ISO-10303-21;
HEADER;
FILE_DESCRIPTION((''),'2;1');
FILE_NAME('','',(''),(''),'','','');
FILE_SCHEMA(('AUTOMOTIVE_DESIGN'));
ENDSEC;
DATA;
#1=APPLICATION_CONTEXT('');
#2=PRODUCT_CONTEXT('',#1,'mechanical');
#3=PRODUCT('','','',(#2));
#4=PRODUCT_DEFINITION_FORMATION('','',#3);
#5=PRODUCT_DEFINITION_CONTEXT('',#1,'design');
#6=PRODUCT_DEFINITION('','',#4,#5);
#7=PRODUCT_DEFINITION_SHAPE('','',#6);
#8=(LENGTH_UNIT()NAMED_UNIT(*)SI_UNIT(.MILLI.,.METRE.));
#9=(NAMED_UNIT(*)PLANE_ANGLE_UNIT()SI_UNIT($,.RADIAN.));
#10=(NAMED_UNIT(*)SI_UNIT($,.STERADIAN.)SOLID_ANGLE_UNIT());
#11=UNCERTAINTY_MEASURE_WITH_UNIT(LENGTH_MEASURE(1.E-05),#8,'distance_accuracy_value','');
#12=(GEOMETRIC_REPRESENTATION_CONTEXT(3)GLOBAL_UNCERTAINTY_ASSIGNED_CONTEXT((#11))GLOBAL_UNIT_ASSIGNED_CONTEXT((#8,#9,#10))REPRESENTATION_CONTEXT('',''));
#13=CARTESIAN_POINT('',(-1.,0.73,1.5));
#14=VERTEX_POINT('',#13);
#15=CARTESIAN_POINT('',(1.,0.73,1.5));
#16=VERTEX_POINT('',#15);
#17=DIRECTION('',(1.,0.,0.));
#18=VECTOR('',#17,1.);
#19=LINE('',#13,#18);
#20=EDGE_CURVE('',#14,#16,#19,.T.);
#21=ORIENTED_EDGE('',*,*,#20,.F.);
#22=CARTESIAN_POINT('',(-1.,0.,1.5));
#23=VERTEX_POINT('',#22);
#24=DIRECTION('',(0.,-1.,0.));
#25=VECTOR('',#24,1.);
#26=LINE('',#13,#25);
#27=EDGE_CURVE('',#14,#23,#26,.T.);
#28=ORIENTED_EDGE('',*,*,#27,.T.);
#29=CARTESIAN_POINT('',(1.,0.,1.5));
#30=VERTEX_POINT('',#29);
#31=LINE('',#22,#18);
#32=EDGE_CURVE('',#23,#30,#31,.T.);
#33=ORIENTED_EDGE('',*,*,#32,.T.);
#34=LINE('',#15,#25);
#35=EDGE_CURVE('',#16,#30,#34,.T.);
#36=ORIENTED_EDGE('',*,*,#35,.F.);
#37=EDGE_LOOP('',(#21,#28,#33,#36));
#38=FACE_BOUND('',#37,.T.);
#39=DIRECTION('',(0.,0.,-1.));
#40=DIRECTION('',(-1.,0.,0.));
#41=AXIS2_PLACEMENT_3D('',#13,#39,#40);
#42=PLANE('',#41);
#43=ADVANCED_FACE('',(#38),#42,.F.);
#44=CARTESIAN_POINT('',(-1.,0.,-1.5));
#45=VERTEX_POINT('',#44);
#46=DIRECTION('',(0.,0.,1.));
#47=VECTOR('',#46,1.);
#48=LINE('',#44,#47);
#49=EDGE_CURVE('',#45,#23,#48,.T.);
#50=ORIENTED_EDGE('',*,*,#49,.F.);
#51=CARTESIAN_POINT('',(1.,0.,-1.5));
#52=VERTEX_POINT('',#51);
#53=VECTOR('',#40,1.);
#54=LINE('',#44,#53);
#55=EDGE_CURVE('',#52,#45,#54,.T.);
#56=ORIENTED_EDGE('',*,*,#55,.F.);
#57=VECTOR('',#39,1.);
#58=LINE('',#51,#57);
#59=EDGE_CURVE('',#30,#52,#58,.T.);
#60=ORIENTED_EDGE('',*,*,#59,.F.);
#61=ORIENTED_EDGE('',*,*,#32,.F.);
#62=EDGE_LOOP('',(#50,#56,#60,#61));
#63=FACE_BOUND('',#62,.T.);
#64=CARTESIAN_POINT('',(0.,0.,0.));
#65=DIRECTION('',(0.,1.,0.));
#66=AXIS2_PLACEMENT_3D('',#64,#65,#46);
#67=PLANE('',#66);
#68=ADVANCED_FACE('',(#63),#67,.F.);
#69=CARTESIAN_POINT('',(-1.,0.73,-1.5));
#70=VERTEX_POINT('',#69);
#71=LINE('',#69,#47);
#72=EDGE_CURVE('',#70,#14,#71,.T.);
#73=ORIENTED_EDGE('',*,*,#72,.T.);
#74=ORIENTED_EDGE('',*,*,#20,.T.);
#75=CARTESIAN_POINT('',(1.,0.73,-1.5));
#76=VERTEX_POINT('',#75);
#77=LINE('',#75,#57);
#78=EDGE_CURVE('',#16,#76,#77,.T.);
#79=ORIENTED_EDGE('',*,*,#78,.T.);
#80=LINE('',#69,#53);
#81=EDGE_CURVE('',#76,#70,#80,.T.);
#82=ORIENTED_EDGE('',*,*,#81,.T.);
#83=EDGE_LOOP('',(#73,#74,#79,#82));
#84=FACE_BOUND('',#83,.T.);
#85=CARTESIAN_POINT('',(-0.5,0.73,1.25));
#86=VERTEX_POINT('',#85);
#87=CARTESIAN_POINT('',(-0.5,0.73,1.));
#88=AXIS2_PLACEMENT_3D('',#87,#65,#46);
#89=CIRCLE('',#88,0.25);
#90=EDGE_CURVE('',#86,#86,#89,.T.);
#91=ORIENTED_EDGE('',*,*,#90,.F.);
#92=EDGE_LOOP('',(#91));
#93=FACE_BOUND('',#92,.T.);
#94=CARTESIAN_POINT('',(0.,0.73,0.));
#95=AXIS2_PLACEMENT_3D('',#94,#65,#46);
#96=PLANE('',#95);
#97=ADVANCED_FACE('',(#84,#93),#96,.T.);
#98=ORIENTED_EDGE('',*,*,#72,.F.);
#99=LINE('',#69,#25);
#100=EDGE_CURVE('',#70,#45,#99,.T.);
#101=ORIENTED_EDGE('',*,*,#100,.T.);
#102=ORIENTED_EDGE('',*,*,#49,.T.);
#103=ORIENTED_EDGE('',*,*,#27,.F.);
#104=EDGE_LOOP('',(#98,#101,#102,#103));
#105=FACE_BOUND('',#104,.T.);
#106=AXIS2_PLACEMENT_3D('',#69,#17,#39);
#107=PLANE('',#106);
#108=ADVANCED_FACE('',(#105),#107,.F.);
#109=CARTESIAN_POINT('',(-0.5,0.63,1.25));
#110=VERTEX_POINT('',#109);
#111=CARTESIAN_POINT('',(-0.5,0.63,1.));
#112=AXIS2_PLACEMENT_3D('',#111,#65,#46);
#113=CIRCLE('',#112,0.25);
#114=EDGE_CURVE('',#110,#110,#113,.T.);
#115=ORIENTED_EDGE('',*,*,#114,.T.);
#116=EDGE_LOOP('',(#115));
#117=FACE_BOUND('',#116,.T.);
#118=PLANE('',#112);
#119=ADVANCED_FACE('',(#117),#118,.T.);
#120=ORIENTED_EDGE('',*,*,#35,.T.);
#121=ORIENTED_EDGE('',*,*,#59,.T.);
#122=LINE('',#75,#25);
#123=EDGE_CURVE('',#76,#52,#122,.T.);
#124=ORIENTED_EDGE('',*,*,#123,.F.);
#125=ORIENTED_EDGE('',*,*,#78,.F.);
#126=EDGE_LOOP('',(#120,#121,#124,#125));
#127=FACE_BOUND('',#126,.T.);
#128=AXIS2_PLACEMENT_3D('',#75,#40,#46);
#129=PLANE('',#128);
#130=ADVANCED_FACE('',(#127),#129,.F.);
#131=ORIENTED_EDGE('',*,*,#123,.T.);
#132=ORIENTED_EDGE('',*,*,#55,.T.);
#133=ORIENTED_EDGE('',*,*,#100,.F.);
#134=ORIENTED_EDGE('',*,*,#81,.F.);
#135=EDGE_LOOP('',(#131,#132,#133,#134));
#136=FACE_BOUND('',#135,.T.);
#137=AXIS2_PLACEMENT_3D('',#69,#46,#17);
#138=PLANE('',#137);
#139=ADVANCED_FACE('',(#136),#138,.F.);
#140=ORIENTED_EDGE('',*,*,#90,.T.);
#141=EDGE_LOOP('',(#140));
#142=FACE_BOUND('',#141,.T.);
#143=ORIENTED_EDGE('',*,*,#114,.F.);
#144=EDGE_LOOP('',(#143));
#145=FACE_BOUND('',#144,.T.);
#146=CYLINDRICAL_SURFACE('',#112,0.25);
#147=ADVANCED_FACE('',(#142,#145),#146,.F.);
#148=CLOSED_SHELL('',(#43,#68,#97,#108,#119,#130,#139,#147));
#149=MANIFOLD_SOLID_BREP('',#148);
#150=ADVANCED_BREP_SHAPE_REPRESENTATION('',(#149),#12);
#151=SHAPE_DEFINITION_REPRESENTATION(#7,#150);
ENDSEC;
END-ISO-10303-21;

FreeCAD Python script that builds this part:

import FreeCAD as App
import Part
import Sketcher
from FreeCAD import Vector
Q = App.Units.Quantity

doc = App.newDocument("Part")
body = doc.addObject("PartDesign::Body", "Body")

# Sketch on XZ plane
sketch1 = body.newObject("Sketcher::SketchObject", "Sketch")
sketch1.AttachmentSupport = (doc.getObject("XZ_Plane"), [""])
sketch1.MapMode = "FlatFace"
sketch1.addGeometry(Part.LineSegment(Vector(-1, -1.5, 0), Vector(-1, 1.5, 0)), False)
sketch1.addGeometry(Part.LineSegment(Vector(-1, 1.5, 0), Vector(1, 1.5, 0)), False)
sketch1.addGeometry(Part.LineSegment(Vector(1, 1.5, 0), Vector(1, -1.5, 0)), False)
sketch1.addGeometry(Part.LineSegment(Vector(1, -1.5, 0), Vector(-1, -1.5, 0)), False)
sketch1.addConstraint(Sketcher.Constraint("Coincident", 0, 2, 1, 1))
sketch1.addConstraint(Sketcher.Constraint("Coincident", 1, 2, 2, 1))
sketch1.addConstraint(Sketcher.Constraint("Coincident", 2, 2, 3, 1))
sketch1.addConstraint(Sketcher.Constraint("Coincident", 3, 2, 0, 1))
sketch1.addConstraint(Sketcher.Constraint("Vertical", 0))
sketch1.addConstraint(Sketcher.Constraint("Horizontal", 1))
sketch1.addConstraint(Sketcher.Constraint("Vertical", 2))
sketch1.addConstraint(Sketcher.Constraint("Horizontal", 3))
sketch1.addConstraint(Sketcher.Constraint("Symmetric", 0, 2, 2, 2, -1, 1))
sketch1.addConstraint(Sketcher.Constraint("DistanceX", 1, 1, 1, 2, Q("2 mm")))
sketch1.addConstraint(Sketcher.Constraint("DistanceY", 0, 1, 0, 2, Q("3 mm")))
pad1 = body.newObject("PartDesign::Pad", "Pad")
pad1.Profile = sketch1
pad1.Length = 0.73
pad1.Reversed = True

# Sketch on XZ plane
sketch2 = body.newObject("Sketcher::SketchObject", "Sketch001")
sketch2.AttachmentSupport = (doc.getObject("XZ_Plane"), [""])
sketch2.MapMode = "FlatFace"
sketch2.AttachmentOffset = App.Placement(Vector(0, 0, -0.73), App.Rotation())
sketch2.addGeometry(Part.Circle(Vector(-0.5, 1, 0), Vector(0, 0, 1), 0.25), False)
sketch2.addConstraint(Sketcher.Constraint("Diameter", 0, Q("0.5 mm")))
sketch2.addConstraint(Sketcher.Constraint("DistanceY", -1, 1, 0, 3, Q("1 mm")))
sketch2.addConstraint(Sketcher.Constraint("DistanceX", 0, 3, -1, 1, Q("0.5 mm")))
pocket1 = body.newObject("PartDesign::Pocket", "Pocket")
pocket1.Profile = sketch2
pocket1.Length = 0.1
pocket1.Reversed = True

doc.recompute()
